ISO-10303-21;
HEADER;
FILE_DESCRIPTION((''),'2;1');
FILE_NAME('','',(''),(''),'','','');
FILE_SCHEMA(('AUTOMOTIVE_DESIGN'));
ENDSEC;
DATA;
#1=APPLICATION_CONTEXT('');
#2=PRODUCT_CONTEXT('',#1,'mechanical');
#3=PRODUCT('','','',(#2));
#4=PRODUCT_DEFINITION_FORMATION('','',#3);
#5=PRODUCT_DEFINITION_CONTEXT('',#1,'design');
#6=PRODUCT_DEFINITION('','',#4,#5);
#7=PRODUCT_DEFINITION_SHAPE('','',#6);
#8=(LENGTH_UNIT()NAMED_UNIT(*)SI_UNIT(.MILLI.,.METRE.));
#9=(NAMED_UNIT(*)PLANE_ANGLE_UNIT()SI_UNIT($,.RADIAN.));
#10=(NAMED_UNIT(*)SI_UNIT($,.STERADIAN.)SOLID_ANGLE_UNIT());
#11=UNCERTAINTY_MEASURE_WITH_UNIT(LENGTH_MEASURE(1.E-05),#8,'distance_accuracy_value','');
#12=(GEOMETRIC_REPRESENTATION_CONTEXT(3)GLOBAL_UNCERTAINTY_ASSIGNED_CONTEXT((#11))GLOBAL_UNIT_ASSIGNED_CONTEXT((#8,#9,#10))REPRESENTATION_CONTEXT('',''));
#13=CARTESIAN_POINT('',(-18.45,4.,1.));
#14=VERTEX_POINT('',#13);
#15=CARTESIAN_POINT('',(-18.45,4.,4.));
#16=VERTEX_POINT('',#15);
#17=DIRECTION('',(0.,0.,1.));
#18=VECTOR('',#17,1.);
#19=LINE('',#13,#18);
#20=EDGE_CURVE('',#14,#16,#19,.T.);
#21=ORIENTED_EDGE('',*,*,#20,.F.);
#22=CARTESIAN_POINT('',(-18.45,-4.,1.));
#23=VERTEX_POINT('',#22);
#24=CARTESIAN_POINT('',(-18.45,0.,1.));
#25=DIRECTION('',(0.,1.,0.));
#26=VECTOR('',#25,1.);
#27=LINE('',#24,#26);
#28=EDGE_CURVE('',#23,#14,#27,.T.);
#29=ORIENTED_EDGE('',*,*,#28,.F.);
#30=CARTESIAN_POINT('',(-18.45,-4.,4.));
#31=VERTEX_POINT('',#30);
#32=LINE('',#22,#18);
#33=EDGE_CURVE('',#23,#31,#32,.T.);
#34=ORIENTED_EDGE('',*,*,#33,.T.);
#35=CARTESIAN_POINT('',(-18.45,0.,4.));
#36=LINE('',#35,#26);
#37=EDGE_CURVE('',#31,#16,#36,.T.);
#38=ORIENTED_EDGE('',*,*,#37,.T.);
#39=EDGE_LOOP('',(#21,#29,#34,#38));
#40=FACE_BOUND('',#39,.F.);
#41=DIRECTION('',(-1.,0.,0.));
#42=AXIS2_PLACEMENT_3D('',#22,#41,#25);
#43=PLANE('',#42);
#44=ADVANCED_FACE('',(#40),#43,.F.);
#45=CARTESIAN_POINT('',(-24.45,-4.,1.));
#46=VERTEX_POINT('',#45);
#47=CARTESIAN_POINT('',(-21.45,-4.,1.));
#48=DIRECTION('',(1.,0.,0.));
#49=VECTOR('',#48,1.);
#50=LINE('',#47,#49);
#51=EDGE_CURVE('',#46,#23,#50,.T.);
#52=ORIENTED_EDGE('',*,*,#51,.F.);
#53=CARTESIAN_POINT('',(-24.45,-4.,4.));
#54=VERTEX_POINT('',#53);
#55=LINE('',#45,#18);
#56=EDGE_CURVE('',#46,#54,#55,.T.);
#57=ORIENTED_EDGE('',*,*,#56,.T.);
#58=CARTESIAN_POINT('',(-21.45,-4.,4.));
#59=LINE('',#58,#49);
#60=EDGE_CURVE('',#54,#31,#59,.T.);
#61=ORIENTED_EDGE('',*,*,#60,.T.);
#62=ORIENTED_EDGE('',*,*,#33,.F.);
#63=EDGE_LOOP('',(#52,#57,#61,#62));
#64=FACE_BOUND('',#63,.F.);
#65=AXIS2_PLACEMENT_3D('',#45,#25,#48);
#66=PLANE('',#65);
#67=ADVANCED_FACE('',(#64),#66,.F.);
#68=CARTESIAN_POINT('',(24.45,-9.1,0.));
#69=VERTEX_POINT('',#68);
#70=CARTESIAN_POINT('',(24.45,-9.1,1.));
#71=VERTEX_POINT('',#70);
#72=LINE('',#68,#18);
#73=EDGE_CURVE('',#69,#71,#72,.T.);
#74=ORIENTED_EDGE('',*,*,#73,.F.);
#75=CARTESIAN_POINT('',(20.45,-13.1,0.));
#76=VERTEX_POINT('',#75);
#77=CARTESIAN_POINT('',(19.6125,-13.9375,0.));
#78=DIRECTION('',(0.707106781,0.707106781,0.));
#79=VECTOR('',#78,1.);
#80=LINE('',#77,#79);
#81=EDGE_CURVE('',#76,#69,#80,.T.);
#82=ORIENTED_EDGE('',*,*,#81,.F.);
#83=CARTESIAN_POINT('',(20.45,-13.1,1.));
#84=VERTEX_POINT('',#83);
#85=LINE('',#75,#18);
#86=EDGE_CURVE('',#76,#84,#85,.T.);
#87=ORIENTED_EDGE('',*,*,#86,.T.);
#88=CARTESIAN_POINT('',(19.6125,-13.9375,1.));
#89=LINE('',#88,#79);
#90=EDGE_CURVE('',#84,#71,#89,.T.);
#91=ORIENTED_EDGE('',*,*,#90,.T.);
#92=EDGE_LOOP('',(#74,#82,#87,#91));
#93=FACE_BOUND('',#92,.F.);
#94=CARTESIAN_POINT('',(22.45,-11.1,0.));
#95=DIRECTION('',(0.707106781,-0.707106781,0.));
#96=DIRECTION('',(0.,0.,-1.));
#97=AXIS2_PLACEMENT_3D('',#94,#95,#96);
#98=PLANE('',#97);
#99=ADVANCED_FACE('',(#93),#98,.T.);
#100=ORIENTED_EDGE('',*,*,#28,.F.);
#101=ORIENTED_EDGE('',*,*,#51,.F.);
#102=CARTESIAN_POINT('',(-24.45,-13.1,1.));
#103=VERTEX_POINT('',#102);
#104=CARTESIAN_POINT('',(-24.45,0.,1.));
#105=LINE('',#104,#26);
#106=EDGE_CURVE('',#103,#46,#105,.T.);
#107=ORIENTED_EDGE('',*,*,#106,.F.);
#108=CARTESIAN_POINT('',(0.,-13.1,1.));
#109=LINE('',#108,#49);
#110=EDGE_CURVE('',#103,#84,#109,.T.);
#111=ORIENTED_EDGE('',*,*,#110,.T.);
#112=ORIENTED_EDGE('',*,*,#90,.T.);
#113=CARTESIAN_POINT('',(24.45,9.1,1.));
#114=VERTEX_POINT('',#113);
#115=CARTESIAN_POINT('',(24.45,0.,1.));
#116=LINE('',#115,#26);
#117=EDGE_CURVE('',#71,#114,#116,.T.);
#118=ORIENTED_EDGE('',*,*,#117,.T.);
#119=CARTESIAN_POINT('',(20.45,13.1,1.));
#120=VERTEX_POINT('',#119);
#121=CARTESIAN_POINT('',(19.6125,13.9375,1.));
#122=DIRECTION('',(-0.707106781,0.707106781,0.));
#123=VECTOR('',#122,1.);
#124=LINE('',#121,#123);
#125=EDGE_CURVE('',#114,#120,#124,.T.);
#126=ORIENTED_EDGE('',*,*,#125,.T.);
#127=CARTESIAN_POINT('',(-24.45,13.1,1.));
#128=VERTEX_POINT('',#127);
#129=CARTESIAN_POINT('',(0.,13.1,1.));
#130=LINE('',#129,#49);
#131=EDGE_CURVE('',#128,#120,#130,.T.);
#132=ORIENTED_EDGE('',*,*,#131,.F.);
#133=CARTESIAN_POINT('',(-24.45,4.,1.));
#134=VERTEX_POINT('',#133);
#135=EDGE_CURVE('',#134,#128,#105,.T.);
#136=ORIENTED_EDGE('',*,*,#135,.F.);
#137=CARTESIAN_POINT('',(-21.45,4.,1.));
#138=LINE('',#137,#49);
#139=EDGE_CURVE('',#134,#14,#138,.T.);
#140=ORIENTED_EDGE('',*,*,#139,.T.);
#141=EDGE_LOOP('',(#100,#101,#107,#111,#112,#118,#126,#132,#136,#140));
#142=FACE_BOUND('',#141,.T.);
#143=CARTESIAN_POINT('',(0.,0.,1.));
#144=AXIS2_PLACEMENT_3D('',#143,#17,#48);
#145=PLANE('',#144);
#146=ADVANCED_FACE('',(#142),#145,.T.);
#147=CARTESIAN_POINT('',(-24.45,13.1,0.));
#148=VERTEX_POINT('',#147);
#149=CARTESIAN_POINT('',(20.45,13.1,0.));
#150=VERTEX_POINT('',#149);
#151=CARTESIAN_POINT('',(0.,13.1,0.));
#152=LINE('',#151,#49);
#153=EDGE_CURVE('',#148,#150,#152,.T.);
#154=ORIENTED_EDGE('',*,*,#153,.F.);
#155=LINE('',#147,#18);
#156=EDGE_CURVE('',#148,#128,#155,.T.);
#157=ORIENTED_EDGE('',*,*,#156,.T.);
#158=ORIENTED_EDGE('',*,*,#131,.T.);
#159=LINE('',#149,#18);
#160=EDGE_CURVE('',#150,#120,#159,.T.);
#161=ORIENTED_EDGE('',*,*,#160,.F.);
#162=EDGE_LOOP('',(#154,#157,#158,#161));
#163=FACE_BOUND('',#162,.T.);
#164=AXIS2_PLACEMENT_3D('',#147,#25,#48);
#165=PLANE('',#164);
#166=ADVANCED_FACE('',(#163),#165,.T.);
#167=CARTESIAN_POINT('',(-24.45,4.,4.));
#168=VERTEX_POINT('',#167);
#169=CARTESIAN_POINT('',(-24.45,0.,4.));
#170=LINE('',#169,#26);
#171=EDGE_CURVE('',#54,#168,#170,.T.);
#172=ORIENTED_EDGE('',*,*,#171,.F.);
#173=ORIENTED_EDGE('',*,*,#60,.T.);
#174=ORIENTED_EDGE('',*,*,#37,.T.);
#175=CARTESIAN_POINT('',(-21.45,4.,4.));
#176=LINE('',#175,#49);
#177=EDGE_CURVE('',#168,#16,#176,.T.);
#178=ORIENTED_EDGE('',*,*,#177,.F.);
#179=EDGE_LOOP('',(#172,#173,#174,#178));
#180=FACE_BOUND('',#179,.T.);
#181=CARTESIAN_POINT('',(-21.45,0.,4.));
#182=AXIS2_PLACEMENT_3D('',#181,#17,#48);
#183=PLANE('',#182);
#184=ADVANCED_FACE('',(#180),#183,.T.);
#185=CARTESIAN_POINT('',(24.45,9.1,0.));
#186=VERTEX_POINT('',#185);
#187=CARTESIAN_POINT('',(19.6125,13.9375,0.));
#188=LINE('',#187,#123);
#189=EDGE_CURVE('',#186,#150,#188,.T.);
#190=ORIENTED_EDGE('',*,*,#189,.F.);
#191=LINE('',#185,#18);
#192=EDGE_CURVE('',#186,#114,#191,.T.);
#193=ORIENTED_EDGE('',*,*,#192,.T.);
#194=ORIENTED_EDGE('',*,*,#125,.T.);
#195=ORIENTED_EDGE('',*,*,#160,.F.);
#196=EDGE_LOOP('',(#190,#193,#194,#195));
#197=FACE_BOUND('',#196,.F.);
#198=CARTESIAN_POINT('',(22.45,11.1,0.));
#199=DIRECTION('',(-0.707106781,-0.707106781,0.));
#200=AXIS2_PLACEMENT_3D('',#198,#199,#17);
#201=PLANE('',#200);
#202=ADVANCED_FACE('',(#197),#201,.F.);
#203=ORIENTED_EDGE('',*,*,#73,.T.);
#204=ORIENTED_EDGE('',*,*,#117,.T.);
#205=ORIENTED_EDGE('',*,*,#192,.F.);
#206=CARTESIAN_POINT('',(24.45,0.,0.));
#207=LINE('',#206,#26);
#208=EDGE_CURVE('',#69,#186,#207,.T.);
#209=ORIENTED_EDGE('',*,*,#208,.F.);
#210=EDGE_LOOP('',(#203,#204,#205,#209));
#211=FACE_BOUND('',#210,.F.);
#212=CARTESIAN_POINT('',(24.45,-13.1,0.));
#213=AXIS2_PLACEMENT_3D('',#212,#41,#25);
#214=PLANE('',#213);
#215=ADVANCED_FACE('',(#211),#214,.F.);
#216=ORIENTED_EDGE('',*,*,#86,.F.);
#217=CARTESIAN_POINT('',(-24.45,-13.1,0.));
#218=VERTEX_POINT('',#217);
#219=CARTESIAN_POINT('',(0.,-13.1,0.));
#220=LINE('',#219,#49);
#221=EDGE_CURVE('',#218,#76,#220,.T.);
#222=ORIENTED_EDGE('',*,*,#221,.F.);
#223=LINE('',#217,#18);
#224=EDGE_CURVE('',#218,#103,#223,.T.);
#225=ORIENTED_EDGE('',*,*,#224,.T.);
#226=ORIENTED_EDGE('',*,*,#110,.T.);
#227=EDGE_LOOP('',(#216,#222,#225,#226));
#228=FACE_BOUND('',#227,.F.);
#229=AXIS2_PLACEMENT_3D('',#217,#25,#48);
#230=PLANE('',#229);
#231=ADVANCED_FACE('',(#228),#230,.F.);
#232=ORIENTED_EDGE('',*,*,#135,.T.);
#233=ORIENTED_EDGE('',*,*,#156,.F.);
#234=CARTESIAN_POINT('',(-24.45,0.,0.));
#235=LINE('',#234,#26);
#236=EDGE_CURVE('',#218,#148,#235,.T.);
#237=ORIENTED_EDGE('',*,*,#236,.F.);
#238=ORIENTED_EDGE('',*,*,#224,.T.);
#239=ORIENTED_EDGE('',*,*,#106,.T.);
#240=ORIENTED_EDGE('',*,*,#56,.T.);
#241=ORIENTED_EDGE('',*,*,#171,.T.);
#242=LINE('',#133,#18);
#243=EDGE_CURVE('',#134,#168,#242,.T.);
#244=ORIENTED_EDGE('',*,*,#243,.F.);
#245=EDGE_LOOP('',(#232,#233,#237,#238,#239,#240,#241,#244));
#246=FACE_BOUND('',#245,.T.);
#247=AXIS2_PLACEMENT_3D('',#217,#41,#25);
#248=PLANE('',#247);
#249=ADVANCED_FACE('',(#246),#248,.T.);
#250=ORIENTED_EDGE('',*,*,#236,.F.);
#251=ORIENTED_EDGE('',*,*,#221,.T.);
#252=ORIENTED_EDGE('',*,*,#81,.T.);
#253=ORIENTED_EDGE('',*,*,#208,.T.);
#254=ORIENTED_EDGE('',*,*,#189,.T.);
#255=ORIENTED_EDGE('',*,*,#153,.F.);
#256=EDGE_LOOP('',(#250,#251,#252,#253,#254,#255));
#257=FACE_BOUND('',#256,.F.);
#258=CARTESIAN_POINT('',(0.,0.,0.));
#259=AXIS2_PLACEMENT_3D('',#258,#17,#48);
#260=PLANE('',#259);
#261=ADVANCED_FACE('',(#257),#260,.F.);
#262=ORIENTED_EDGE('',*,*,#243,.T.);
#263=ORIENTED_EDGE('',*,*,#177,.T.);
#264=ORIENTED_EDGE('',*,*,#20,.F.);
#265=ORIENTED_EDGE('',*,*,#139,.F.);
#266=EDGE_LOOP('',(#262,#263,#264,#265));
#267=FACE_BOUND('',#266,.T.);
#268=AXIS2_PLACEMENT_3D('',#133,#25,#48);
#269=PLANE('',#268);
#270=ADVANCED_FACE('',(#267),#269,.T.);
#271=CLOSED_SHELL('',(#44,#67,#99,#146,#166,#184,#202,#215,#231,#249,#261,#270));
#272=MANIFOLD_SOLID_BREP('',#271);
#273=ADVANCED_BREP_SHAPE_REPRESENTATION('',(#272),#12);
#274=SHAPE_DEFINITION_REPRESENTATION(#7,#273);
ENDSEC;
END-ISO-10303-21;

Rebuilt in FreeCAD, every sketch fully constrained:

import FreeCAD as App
import Part
import Sketcher

V = App.Vector


def edges_at(feature, points):
    """Names of the edges that pass closest to the given points."""
    edges = feature.Shape.Edges
    near = lambda p: min(range(len(edges)), key=lambda i: edges[i].distToShape(Part.Vertex(*p))[0])
    return sorted({f"Edge{near(p) + 1}" for p in points})


def add_polygon(sketch, points):
    """Adds a closed chain of lines whose ends are joined by coincident constraints."""
    first, n = sketch.GeometryCount, len(points)
    for a, b in zip(points, points[1:] + points[:1]):
        sketch.addGeometry(Part.LineSegment(App.Vector(*a, 0), App.Vector(*b, 0)), False)
    for i in range(n):
        sketch.addConstraint(Sketcher.Constraint("Coincident", first + i, 2, first + (i + 1) % n, 1))

doc = App.newDocument("Part")
body = doc.addObject("PartDesign::Body", "Body")

# Sketch on XY plane
sketch1 = body.newObject("Sketcher::SketchObject", "Sketch")
sketch1.AttachmentSupport = (doc.getObject("XY_Plane"), [""])
sketch1.MapMode = "FlatFace"
add_polygon(sketch1, [(-24, 13), (-24, -13), (24, -13), (24, 13)])  # lines 0-3
sketch1.addConstraint([
    Sketcher.Constraint("Vertical", 0),
    Sketcher.Constraint("Horizontal", 1),
    Sketcher.Constraint("Vertical", 2),
    Sketcher.Constraint("Horizontal", 3),
    Sketcher.Constraint("Symmetric", 0, 2, 2, 2, -1, 1),
    Sketcher.Constraint("DistanceX", 1, 1, 1, 2, 48.9),
    Sketcher.Constraint("DistanceY", 0, 2, 0, 1, 26.2),
])
pad1 = body.newObject("PartDesign::Pad", "Pad")
pad1.Profile = sketch1
pad1.Length = 1
doc.recompute()

chamfer = body.newObject("PartDesign::Chamfer", "Chamfer")
chamfer.Base = (pad1, edges_at(pad1, [(24.45, 13.1, 0.5), (24.45, -13.1, 0.5)]))
chamfer.Size = 4

# Sketch on XY plane
sketch2 = body.newObject("Sketcher::SketchObject", "Sketch001")
sketch2.AttachmentSupport = (doc.getObject("XY_Plane"), [""])
sketch2.MapMode = "FlatFace"
sketch2.AttachmentOffset = App.Placement(V(0, 0, 1), App.Rotation())
add_polygon(sketch2, [(-24, 4), (-24, -4), (-18, -4), (-18, 4)])  # lines 0-3
sketch2.addConstraint([
    Sketcher.Constraint("Vertical", 0),
    Sketcher.Constraint("Horizontal", 1),
    Sketcher.Constraint("Vertical", 2),
    Sketcher.Constraint("Horizontal", 3),
    Sketcher.Constraint("DistanceX", 1, 1, 1, 2, 6.0),
    Sketcher.Constraint("DistanceY", 0, 2, 0, 1, 8.0),
    Sketcher.Constraint("DistanceY", 0, 2, -1, 1, 4.0),
    Sketcher.Constraint("DistanceX", 0, 2, -1, 1, 24.45),
])
pad2 = body.newObject("PartDesign::Pad", "Pad001")
pad2.Profile = sketch2
pad2.Length = 3

doc.recompute()
